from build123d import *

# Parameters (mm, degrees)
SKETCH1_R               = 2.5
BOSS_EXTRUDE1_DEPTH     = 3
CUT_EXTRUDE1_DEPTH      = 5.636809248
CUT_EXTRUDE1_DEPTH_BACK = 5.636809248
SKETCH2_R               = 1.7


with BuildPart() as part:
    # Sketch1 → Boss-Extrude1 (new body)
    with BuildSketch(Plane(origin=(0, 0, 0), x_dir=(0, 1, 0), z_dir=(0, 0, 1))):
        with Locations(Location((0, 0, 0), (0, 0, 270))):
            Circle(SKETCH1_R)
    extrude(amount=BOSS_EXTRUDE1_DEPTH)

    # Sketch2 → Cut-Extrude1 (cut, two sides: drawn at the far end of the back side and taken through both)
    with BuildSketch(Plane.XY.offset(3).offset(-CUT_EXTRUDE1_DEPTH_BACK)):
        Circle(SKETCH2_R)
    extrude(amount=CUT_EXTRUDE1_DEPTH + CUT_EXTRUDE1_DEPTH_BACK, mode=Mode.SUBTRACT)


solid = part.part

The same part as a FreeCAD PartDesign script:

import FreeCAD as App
import Part
import Sketcher

V = App.Vector

doc = App.newDocument("Part")
body = doc.addObject("PartDesign::Body", "Body")

# Sketch on XY plane
sketch1 = doc.addObject("Sketcher::SketchObject", "Sketch")
body.addObject(sketch1)
sketch1.AttachmentSupport = (doc.XY_Plane, [""])
sketch1.MapMode = "FlatFace"
sketch1.addGeometry(Part.Circle(V(0, 0, 0), V(0, 0, 1), 2.5), False)
sketch1.addConstraint(Sketcher.Constraint("Coincident", 0, 3, -1, 1))
sketch1.addConstraint(Sketcher.Constraint("Diameter", 0, 5.0))
pad1 = doc.addObject("PartDesign::Pad", "Pad")
body.addObject(pad1)
pad1.Profile = sketch1
pad1.Length = 3

# Sketch on XY plane
sketch2 = doc.addObject("Sketcher::SketchObject", "Sketch001")
body.addObject(sketch2)
sketch2.AttachmentSupport = (doc.XY_Plane, [""])
sketch2.MapMode = "FlatFace"
sketch2.AttachmentOffset = App.Placement(V(0, 0, 3), App.Rotation())
sketch2.addGeometry(Part.Circle(V(0, 0, 0), V(0, 0, 1), 1.7), False)
sketch2.addConstraint(Sketcher.Constraint("Coincident", 0, 3, -1, 1))
sketch2.addConstraint(Sketcher.Constraint("Diameter", 0, 3.4))
pocket1 = doc.addObject("PartDesign::Pocket", "Pocket")
body.addObject(pocket1)
pocket1.Profile = sketch2
pocket1.Type = "ThroughAll"
pocket1.Midplane = True

doc.recompute()
